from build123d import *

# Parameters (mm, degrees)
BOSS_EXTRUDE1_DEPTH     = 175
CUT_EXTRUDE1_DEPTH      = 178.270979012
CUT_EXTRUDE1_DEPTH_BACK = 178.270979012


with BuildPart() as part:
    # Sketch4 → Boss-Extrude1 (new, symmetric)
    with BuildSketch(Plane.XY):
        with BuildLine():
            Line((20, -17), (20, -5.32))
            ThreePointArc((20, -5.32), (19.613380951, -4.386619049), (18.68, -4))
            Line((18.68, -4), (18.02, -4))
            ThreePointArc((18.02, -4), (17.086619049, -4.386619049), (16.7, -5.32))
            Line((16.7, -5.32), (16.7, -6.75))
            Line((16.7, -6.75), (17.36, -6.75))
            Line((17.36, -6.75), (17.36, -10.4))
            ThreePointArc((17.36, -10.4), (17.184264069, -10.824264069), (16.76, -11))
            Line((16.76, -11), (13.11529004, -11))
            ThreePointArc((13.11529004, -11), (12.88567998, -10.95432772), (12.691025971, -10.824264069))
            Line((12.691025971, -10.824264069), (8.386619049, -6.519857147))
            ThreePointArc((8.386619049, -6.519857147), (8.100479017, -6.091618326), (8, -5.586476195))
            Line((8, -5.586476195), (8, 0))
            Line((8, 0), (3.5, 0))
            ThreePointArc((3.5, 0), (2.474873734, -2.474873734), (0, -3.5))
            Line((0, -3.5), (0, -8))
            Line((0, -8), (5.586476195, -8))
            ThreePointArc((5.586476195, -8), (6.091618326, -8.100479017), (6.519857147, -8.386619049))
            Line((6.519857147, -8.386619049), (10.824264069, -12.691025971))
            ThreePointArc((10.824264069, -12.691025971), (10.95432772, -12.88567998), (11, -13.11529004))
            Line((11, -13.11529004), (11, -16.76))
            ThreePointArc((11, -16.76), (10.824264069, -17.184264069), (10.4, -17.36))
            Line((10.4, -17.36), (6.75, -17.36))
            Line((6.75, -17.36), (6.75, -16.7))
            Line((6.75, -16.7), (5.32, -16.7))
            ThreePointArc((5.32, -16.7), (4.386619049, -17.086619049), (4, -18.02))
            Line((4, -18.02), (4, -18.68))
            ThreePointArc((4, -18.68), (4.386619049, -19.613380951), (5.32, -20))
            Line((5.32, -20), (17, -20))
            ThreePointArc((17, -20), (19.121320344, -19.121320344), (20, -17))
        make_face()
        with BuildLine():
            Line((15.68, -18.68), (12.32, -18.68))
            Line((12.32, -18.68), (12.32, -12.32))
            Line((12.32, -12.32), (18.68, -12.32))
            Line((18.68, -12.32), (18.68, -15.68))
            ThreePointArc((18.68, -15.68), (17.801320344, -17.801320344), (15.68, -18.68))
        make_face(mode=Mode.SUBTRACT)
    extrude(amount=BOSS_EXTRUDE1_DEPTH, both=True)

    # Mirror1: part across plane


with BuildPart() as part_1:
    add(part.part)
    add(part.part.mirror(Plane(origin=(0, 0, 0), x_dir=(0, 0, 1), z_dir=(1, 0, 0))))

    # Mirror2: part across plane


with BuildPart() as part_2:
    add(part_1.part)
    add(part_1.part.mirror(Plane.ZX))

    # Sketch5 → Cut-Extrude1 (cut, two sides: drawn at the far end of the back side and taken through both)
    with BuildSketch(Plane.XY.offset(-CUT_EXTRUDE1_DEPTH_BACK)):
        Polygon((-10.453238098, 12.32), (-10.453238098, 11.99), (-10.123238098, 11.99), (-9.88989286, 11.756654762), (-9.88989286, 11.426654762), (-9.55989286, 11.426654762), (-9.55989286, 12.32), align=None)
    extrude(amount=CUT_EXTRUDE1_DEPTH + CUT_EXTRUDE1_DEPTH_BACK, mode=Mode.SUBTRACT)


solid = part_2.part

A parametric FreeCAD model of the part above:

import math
import FreeCAD as App
import Part
import Sketcher
from FreeCAD import Vector


def add_polygon(sketch, points):
    """Adds a closed chain of lines whose ends are joined by coincident constraints."""
    first, n = sketch.GeometryCount, len(points)
    for a, b in zip(points, points[1:] + points[:1]):
        sketch.addGeometry(Part.LineSegment(App.Vector(*a, 0), App.Vector(*b, 0)), False)
    for i in range(n):
        sketch.addConstraint(Sketcher.Constraint("Coincident", first + i, 2, first + (i + 1) % n, 1))

doc = App.newDocument("Part")
body = doc.addObject("PartDesign::Body", "Body")

sketch1 = doc.addObject("Sketcher::SketchObject", "Sketch")
body.addObject(sketch1)
sketch1.AttachmentSupport = (doc.XY_Plane, [""])
sketch1.MapMode = "FlatFace"
sketch1.addGeometry([
    Part.LineSegment(Vector(20, -17, 0), Vector(20, -5.32, 0)),
    Part.ArcOfCircle(Part.Circle(Vector(18.68, -5.32, 0), Vector(0, 0, 1), 1.32), math.radians(0), math.radians(90)),
    Part.LineSegment(Vector(18.68, -4, 0), Vector(18.02, -4, 0)),
    Part.ArcOfCircle(Part.Circle(Vector(18.02, -5.32, 0), Vector(0, 0, 1), 1.32), math.radians(90), math.radians(180)),
    Part.LineSegment(Vector(16.7, -5.32, 0), Vector(16.7, -6.75, 0)),
    Part.LineSegment(Vector(16.7, -6.75, 0), Vector(17.36, -6.75, 0)),
    Part.LineSegment(Vector(17.36, -6.75, 0), Vector(17.36, -10.4, 0)),
    Part.ArcOfCircle(Part.Circle(Vector(16.76, -10.4, 0), Vector(0, 0, 1), 0.6), math.radians(-90), math.radians(0)),
    Part.LineSegment(Vector(16.76, -11, 0), Vector(13.11529, -11, 0)),
    Part.ArcOfCircle(Part.Circle(Vector(13.11529, -10.4, 0), Vector(0, 0, 1), 0.6), math.radians(-135), math.radians(-90)),
    Part.LineSegment(Vector(12.691026, -10.824264, 0), Vector(8.386619, -6.519857, 0)),
    Part.ArcOfCircle(Part.Circle(Vector(9.32, -5.586476, 0), Vector(0, 0, 1), 1.32), math.radians(180), math.radians(225)),
    Part.LineSegment(Vector(8, -5.586476, 0), Vector(8, 0, 0)),
    Part.LineSegment(Vector(8, 0, 0), Vector(3.5, 0, 0)),
    Part.ArcOfCircle(Part.Circle(Vector(0, 0, 0), Vector(0, 0, 1), 3.5), math.radians(-90), math.radians(0)),
    Part.LineSegment(Vector(0, -3.5, 0), Vector(0, -8, 0)),
    Part.LineSegment(Vector(0, -8, 0), Vector(5.586476, -8, 0)),
    Part.ArcOfCircle(Part.Circle(Vector(5.586476, -9.32, 0), Vector(0, 0, 1), 1.32), math.radians(45), math.radians(90)),
    Part.LineSegment(Vector(6.519857, -8.386619, 0), Vector(10.824264, -12.691026, 0)),
    Part.ArcOfCircle(Part.Circle(Vector(10.4, -13.11529, 0), Vector(0, 0, 1), 0.6), math.radians(0), math.radians(45)),
    Part.LineSegment(Vector(11, -13.11529, 0), Vector(11, -16.76, 0)),
    Part.ArcOfCircle(Part.Circle(Vector(10.4, -16.76, 0), Vector(0, 0, 1), 0.6), math.radians(-90), math.radians(0)),
    Part.LineSegment(Vector(10.4, -17.36, 0), Vector(6.75, -17.36, 0)),
    Part.LineSegment(Vector(6.75, -17.36, 0), Vector(6.75, -16.7, 0)),
    Part.LineSegment(Vector(6.75, -16.7, 0), Vector(5.32, -16.7, 0)),
    Part.ArcOfCircle(Part.Circle(Vector(5.32, -18.02, 0), Vector(0, 0, 1), 1.32), math.radians(90), math.radians(180)),
    Part.LineSegment(Vector(4, -18.02, 0), Vector(4, -18.68, 0)),
    Part.ArcOfCircle(Part.Circle(Vector(5.32, -18.68, 0), Vector(0, 0, 1), 1.32), math.radians(-180), math.radians(-90)),
    Part.LineSegment(Vector(5.32, -20, 0), Vector(17, -20, 0)),
    Part.ArcOfCircle(Part.Circle(Vector(17, -17, 0), Vector(0, 0, 1), 3), math.radians(-90), math.radians(0)),
    Part.ArcOfCircle(Part.Circle(Vector(15.68, -15.68, 0), Vector(0, 0, 1), 3), math.radians(-90), math.radians(0)),
    Part.LineSegment(Vector(15.68, -18.68, 0), Vector(12.32, -18.68, 0)),
    Part.LineSegment(Vector(12.32, -18.68, 0), Vector(12.32, -12.32, 0)),
    Part.LineSegment(Vector(12.32, -12.32, 0), Vector(18.68, -12.32, 0)),
    Part.LineSegment(Vector(18.68, -12.32, 0), Vector(18.68, -15.68, 0)),
], False)
sketch1.addConstraint([
    Sketcher.Constraint("Tangent", 0, 2, 1, 1),
    Sketcher.Constraint("Tangent", 1, 2, 2, 1),
    Sketcher.Constraint("Tangent", 2, 2, 3, 1),
    Sketcher.Constraint("Tangent", 3, 2, 4, 1),
    Sketcher.Constraint("Coincident", 4, 2, 5, 1),
    Sketcher.Constraint("Coincident", 5, 2, 6, 1),
    Sketcher.Constraint("Tangent", 6, 2, 7, 2),
    Sketcher.Constraint("Tangent", 7, 1, 8, 1),
    Sketcher.Constraint("Tangent", 8, 2, 9, 2),
    Sketcher.Constraint("Tangent", 9, 1, 10, 1),
    Sketcher.Constraint("Tangent", 10, 2, 11, 2),
    Sketcher.Constraint("Tangent", 11, 1, 12, 1),
    Sketcher.Constraint("Coincident", 12, 2, 13, 1),
    Sketcher.Constraint("Coincident", 13, 2, 14, 2),
    Sketcher.Constraint("Coincident", 14, 1, 15, 1),
    Sketcher.Constraint("Coincident", 15, 2, 16, 1),
    Sketcher.Constraint("Tangent", 16, 2, 17, 2),
    Sketcher.Constraint("Tangent", 17, 1, 18, 1),
    Sketcher.Constraint("Tangent", 18, 2, 19, 2),
    Sketcher.Constraint("Tangent", 19, 1, 20, 1),
    Sketcher.Constraint("Tangent", 20, 2, 21, 2),
    Sketcher.Constraint("Tangent", 21, 1, 22, 1),
    Sketcher.Constraint("Coincident", 22, 2, 23, 1),
    Sketcher.Constraint("Coincident", 23, 2, 24, 1),
    Sketcher.Constraint("Tangent", 24, 2, 25, 1),
    Sketcher.Constraint("Tangent", 25, 2, 26, 1),
    Sketcher.Constraint("Tangent", 26, 2, 27, 1),
    Sketcher.Constraint("Tangent", 27, 2, 28, 1),
    Sketcher.Constraint("Tangent", 28, 2, 29, 1),
    Sketcher.Constraint("Tangent", 29, 2, 0, 1),
    Sketcher.Constraint("Tangent", 30, 1, 31, 1),
    Sketcher.Constraint("Coincident", 31, 2, 32, 1),
    Sketcher.Constraint("Coincident", 32, 2, 33, 1),
    Sketcher.Constraint("Coincident", 33, 2, 34, 1),
    Sketcher.Constraint("Tangent", 34, 2, 30, 2),
    Sketcher.Constraint("Vertical", 0),
    Sketcher.Constraint("Horizontal", 2),
    Sketcher.Constraint("Vertical", 4),
    Sketcher.Constraint("Horizontal", 5),
    Sketcher.Constraint("Vertical", 6),
    Sketcher.Constraint("Horizontal", 8),
    Sketcher.Constraint("Vertical", 12),
    Sketcher.Constraint("Horizontal", 13),
    Sketcher.Constraint("Vertical", 15),
    Sketcher.Constraint("Horizontal", 16),
    Sketcher.Constraint("Vertical", 20),
    Sketcher.Constraint("Horizontal", 22),
    Sketcher.Constraint("Vertical", 23),
    Sketcher.Constraint("Horizontal", 24),
    Sketcher.Constraint("Vertical", 26),
    Sketcher.Constraint("Horizontal", 28),
    Sketcher.Constraint("Horizontal", 31),
    Sketcher.Constraint("Vertical", 32),
    Sketcher.Constraint("Horizontal", 33),
    Sketcher.Constraint("Vertical", 34),
    Sketcher.Constraint("Coincident", 14, 3, -1, 1),
    Sketcher.Constraint("Equal", 1, 3),
    Sketcher.Constraint("Equal", 7, 9),
    Sketcher.Constraint("Equal", 3, 11),
    Sketcher.Constraint("Equal", 11, 17),
    Sketcher.Constraint("Equal", 9, 19),
    Sketcher.Constraint("Equal", 19, 21),
    Sketcher.Constraint("Equal", 17, 25),
    Sketcher.Constraint("Equal", 25, 27),
    Sketcher.Constraint("Equal", 29, 30),
    Sketcher.Constraint("PointOnObject", 12, 2, -1),
    Sketcher.Constraint("PointOnObject", 14, 1, -2),
    Sketcher.Constraint("Parallel", 10, 18),
    Sketcher.Constraint("Horizontal", 26, 2, 30, 1),
    Sketcher.Constraint("Vertical", 1, 2, 33, 2),
    Sketcher.Constraint("Equal", 2, 5),
    Sketcher.Constraint("Equal", 28, 0),
    Sketcher.Constraint("Equal", 24, 4),
    Sketcher.Constraint("Equal", 22, 6),
    Sketcher.Constraint("Equal", 16, 12),
    Sketcher.Constraint("Equal", 13, 15),
    Sketcher.Constraint("Equal", 8, 20),
    Sketcher.Constraint("Equal", 5, 23),
    Sketcher.Constraint("Equal", 23, 26),
    Sketcher.Constraint("Equal", 33, 32),
    Sketcher.Constraint("Equal", 10, 18),
    Sketcher.Constraint("Radius", 29, 3.0),
    Sketcher.Constraint("Radius", 7, 0.6),
    Sketcher.Constraint("Radius", 14, 3.5),
    Sketcher.Constraint("Radius", 1, 1.32),
    Sketcher.Constraint("DistanceX", 13, 2, 13, 1, 4.5),
    Sketcher.Constraint("DistanceX", -1, 1, 29, 3, 17.0),
    Sketcher.Constraint("DistanceY", 1, 2, -1, 1, 4.0),
    Sketcher.Constraint("DistanceY", 7, 1, -1, 1, 11.0),
    Sketcher.Constraint("DistanceX", 2, 2, 2, 1, 0.66),
    Sketcher.Constraint("DistanceX", 22, 2, 22, 1, 3.65),
    Sketcher.Constraint("DistanceX", 31, 2, 31, 1, 3.36),
    Sketcher.Constraint("DistanceX", 8, 2, 8, 1, 3.64471),
])
pad1 = doc.addObject("PartDesign::Pad", "Pad")
body.addObject(pad1)
pad1.Profile = sketch1
pad1.Length = 350
pad1.Midplane = True
body2 = doc.addObject("PartDesign::Body", "Body001")
doc.recompute()

body2.BaseFeature = body
doc.recompute()

mirroring = doc.addObject("Part::Mirroring", "Mirroring")
mirroring.Source = body
mirroring.Base = Vector(0, 0, 0)
mirroring.Normal = Vector(1, 0, 0)
body3 = doc.addObject("PartDesign::Body", "Body002")
body3.BaseFeature = mirroring
boolean = doc.addObject("PartDesign::Boolean", "Boolean")
body2.addObject(boolean)
boolean.Type = "Fuse"
boolean.addObjects([body3])
doc.recompute()
body4 = doc.addObject("PartDesign::Body", "Body003")
doc.recompute()

body4.BaseFeature = body2
doc.recompute()

mirroring2 = doc.addObject("Part::Mirroring", "Mirroring001")
mirroring2.Source = body2
mirroring2.Base = Vector(0, 0, 0)
mirroring2.Normal = Vector(0, 1, 0)
body5 = doc.addObject("PartDesign::Body", "Body004")
body5.BaseFeature = mirroring2
boolean2 = doc.addObject("PartDesign::Boolean", "Boolean001")
body4.addObject(boolean2)
boolean2.Type = "Fuse"
boolean2.addObjects([body5])
doc.recompute()

sketch2 = doc.addObject("Sketcher::SketchObject", "Sketch001")
body4.addObject(sketch2)
sketch2.AttachmentSupport = (doc.getObject("XY_Plane003"), [""])
sketch2.MapMode = "FlatFace"
add_polygon(sketch2, [(-10.453238, 12.32), (-10.453238, 11.99), (-10.123238, 11.99), (-9.889893, 11.756655), (-9.889893, 11.426655), (-9.559893, 11.426655), (-9.559893, 12.32)])
sketch2.addConstraint([
    Sketcher.Constraint("Vertical", 0),
    Sketcher.Constraint("Horizontal", 1),
    Sketcher.Constraint("Vertical", 3),
    Sketcher.Constraint("Horizontal", 4),
    Sketcher.Constraint("Vertical", 5),
    Sketcher.Constraint("Horizontal", 6),
    Sketcher.Constraint("Equal", 1, 4),
    Sketcher.Constraint("Equal", 4, 0),
    Sketcher.Constraint("Equal", 0, 3),
    Sketcher.Constraint("Equal", 6, 5),
    Sketcher.Constraint("DistanceX", 1, 1, 1, 2, 0.33),
    Sketcher.Constraint("Distance", 2, 0.33),
    Sketcher.Constraint("DistanceY", -1, 1, 0, 2, 11.99),
    Sketcher.Constraint("DistanceX", 0, 2, -1, 1, 10.453238),
])
pocket1 = doc.addObject("PartDesign::Pocket", "Pocket")
body4.addObject(pocket1)
pocket1.Profile = sketch2
pocket1.Type = "ThroughAll"
pocket1.Midplane = True
mirroring.Visibility = False
mirroring2.Visibility = False

doc.recompute()
